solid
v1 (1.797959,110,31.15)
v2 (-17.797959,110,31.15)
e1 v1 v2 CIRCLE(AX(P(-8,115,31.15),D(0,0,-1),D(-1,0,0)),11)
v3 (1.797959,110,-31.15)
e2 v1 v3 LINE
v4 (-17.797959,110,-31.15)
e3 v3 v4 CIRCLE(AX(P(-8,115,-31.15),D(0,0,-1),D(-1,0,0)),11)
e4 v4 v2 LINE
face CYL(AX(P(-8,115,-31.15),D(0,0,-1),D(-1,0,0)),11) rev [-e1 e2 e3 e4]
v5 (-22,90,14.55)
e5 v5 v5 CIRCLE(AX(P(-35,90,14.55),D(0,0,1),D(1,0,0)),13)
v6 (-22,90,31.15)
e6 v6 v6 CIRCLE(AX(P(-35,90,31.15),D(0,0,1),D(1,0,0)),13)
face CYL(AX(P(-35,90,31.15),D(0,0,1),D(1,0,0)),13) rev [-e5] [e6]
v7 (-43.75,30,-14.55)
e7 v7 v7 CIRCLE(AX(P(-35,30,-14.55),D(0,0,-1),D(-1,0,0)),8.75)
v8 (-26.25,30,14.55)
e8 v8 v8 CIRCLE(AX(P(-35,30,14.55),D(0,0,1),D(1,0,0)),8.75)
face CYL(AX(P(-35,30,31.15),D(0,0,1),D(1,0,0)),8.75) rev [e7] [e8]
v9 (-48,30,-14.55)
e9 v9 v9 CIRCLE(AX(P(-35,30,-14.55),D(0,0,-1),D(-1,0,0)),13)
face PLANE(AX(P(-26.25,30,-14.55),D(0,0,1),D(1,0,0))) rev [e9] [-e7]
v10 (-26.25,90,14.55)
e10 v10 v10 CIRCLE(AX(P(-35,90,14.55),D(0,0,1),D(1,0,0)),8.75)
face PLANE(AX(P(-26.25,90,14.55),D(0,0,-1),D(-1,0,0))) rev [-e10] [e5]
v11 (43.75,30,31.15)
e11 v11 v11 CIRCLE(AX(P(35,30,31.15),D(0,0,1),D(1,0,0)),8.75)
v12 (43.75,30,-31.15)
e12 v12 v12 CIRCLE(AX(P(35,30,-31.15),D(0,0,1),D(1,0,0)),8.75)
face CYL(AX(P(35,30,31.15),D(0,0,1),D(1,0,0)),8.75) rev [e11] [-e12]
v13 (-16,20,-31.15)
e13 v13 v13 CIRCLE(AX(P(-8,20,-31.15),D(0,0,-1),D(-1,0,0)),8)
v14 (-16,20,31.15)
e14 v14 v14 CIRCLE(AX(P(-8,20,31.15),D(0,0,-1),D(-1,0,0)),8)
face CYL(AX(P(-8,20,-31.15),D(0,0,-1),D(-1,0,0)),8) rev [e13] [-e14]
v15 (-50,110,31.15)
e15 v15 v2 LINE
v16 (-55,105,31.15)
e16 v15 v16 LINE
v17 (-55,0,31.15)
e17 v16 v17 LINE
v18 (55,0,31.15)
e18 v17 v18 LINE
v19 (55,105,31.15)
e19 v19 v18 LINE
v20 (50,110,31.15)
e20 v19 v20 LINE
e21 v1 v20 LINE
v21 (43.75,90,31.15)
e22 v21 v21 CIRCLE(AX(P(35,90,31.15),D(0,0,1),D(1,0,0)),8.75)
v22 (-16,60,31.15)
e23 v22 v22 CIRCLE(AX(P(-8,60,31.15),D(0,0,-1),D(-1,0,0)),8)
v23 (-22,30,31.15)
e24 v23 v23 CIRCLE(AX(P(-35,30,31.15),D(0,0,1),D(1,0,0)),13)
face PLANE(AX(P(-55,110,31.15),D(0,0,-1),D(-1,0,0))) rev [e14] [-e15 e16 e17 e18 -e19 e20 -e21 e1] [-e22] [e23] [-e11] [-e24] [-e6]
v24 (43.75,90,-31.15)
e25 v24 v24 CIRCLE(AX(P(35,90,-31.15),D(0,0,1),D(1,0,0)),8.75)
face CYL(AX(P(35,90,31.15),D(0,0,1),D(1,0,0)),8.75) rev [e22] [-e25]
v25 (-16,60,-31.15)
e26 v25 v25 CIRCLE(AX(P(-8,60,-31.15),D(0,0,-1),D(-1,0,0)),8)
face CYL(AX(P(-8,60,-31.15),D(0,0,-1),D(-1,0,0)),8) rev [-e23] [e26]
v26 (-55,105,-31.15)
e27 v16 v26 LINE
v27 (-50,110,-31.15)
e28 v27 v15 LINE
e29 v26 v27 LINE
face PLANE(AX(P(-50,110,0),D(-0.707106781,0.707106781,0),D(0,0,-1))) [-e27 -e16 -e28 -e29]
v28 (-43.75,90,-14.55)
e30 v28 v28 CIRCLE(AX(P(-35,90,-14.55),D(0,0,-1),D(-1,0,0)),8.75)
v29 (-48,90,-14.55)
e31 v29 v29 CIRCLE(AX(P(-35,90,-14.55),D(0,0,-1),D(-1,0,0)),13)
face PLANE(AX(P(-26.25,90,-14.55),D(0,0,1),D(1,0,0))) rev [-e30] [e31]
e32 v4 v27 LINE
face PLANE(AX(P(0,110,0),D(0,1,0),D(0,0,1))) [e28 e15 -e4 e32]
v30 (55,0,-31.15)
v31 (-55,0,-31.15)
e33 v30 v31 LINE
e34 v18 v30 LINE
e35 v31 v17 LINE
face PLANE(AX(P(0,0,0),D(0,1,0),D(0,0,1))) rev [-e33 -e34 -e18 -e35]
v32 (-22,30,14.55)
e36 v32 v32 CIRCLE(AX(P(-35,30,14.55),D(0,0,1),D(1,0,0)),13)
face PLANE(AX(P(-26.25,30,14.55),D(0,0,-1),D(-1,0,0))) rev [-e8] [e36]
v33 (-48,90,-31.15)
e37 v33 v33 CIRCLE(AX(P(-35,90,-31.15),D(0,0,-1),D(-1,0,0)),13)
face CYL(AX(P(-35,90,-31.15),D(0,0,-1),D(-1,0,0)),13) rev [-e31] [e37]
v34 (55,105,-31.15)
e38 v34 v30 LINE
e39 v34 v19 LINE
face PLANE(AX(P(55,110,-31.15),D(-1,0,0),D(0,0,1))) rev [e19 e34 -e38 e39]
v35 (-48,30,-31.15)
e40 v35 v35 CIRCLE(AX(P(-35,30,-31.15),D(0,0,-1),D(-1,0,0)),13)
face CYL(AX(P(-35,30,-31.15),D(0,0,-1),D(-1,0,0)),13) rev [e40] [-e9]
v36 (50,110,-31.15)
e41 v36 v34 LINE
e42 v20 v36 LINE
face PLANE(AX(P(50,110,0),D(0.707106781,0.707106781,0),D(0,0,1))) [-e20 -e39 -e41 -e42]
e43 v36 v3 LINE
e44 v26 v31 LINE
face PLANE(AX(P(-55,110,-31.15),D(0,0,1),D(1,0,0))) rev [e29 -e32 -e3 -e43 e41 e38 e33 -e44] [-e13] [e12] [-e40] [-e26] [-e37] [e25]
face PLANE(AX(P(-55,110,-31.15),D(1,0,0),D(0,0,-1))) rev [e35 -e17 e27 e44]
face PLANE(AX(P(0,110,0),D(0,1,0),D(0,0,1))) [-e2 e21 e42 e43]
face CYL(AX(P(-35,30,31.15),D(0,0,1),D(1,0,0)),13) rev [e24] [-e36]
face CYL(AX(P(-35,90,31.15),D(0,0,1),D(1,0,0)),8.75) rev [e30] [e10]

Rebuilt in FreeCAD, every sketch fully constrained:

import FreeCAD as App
import Part
import Sketcher


def edges_at(feature, points):
    """Names of the edges that pass closest to the given points."""
    edges = feature.Shape.Edges
    near = lambda p: min(range(len(edges)), key=lambda i: edges[i].distToShape(Part.Vertex(*p))[0])
    return sorted({f"Edge{near(p) + 1}" for p in points})


def add_polygon(sketch, points):
    """Adds a closed chain of lines whose ends are joined by coincident constraints."""
    first, n = sketch.GeometryCount, len(points)
    for a, b in zip(points, points[1:] + points[:1]):
        sketch.addGeometry(Part.LineSegment(App.Vector(*a, 0), App.Vector(*b, 0)), False)
    for i in range(n):
        sketch.addConstraint(Sketcher.Constraint("Coincident", first + i, 2, first + (i + 1) % n, 1))

doc = App.newDocument("Part")
params = doc.addObject("Spreadsheet::Sheet", "Params")
for row, (alias, value) in enumerate([
    ("sketch1_width", "110 mm"),
    ("sketch1_height", "62.3 mm"),
    ("pad1_length", "110 mm"),
    ("sketch2_diameter", "17.5 mm"),
    ("hole_diameter", "17.5 mm"),
    ("sketch3_diameter", "17.5 mm"),
    ("hole2_diameter", "17.5 mm"),
    ("hole2_cbore_diameter", "26 mm"),
    ("hole2_cbore_depth", "16.6 mm"),
    ("sketch4_diameter", "16 mm"),
    ("hole3_diameter", "16 mm"),
    ("sketch5_diameter", "22 mm"),
    ("hole4_diameter", "22 mm"),
    ("chamfer_size", "5 mm"),
    ("sketch6_diameter", "17.5 mm"),
    ("hole5_diameter", "17.5 mm"),
    ("hole5_cbore_diameter", "26 mm"),
    ("hole5_cbore_depth", "16.6 mm"),
], start=1):
    params.set(f"A{row}", alias)
    params.set(f"B{row}", "=" + value)
    params.setAlias(f"B{row}", alias)

body = doc.addObject("PartDesign::Body", "Body")

# Sketch on XZ plane
sketch1 = body.newObject("Sketcher::SketchObject", "Sketch")
sketch1.AttachmentSupport = (doc.getObject("XZ_Plane"), [""])
sketch1.MapMode = "FlatFace"
add_polygon(sketch1, [(-55, -31), (-55, 31), (55, 31), (55, -31)])  # lines 0-3
sketch1.addConstraint([
    Sketcher.Constraint("Vertical", 0),
    Sketcher.Constraint("Horizontal", 1),
    Sketcher.Constraint("Vertical", 2),
    Sketcher.Constraint("Horizontal", 3),
    Sketcher.Constraint("Symmetric", 0, 2, 2, 2, -1, 1),
    Sketcher.Constraint("DistanceX", 1, 1, 1, 2, 110.0),
    Sketcher.Constraint("DistanceY", 0, 1, 0, 2, 62.3),
])
sketch1.setExpression("Constraints[9]", "Params.sketch1_width")
sketch1.setExpression("Constraints[10]", "Params.sketch1_height")
pad1 = body.newObject("PartDesign::Pad", "Pad")
pad1.Profile = sketch1
pad1.setExpression("Length", "Params.pad1_length")
pad1.Reversed = True

# Sketch on XY plane
sketch2 = body.newObject("Sketcher::SketchObject", "Sketch001")
sketch2.AttachmentSupport = (doc.getObject("XY_Plane"), [""])
sketch2.MapMode = "FlatFace"
sketch2.AttachmentOffset = App.Placement(App.Vector(0, 0, 31.15), App.Rotation())
sketch2.addGeometry([
    Part.Circle(App.Vector(35, 90, 0), App.Vector(0, 0, 1), 9),
    Part.Circle(App.Vector(35, 30, 0), App.Vector(0, 0, 1), 9),
], False)
sketch2.addConstraint([
    Sketcher.Constraint("Equal", 0, 1),
    Sketcher.Constraint("Vertical", 0, 3, 1, 3),
    Sketcher.Constraint("Diameter", 0, 17.5),
    Sketcher.Constraint("DistanceX", -1, 1, 0, 3, 35.0),
    Sketcher.Constraint("DistanceY", -1, 1, 0, 3, 90.0),
    Sketcher.Constraint("DistanceY", -1, 1, 1, 3, 30.0),
])
sketch2.setExpression("Constraints[2]", "Params.sketch2_diameter")
doc.recompute()
hole = body.newObject("PartDesign::Hole", "Hole")
hole.Profile = sketch2
hole.ThreadType = "None"
hole.setExpression("Diameter", "Params.hole_diameter")
hole.DepthType = "ThroughAll"

# Sketch on XY plane
sketch3 = body.newObject("Sketcher::SketchObject", "Sketch002")
sketch3.AttachmentSupport = (doc.getObject("XY_Plane"), [""])
sketch3.MapMode = "FlatFace"
sketch3.AttachmentOffset = App.Placement(App.Vector(0, 0, 31.15), App.Rotation())
sketch3.addGeometry([
    Part.Circle(App.Vector(-35, 90, 0), App.Vector(0, 0, 1), 9),
    Part.Circle(App.Vector(-35, 30, 0), App.Vector(0, 0, 1), 9),
], False)
sketch3.addConstraint([
    Sketcher.Constraint("Equal", 0, 1),
    Sketcher.Constraint("Vertical", 0, 3, 1, 3),
    Sketcher.Constraint("Diameter", 0, 17.5),
    Sketcher.Constraint("DistanceX", 0, 3, -1, 1, 35.0),
    Sketcher.Constraint("DistanceY", -1, 1, 0, 3, 90.0),
    Sketcher.Constraint("DistanceY", -1, 1, 1, 3, 30.0),
])
sketch3.setExpression("Constraints[2]", "Params.sketch3_diameter")
doc.recompute()
hole2 = body.newObject("PartDesign::Hole", "Hole001")
hole2.Profile = sketch3
hole2.ThreadType = "None"
hole2.setExpression("Diameter", "Params.hole2_diameter")
hole2.DepthType = "ThroughAll"
hole2.HoleCutType = "Counterbore"
hole2.setExpression("HoleCutDiameter", "Params.hole2_cbore_diameter")
hole2.setExpression("HoleCutDepth", "Params.hole2_cbore_depth")

# Sketch on XY plane
sketch4 = body.newObject("Sketcher::SketchObject", "Sketch003")
sketch4.AttachmentSupport = (doc.getObject("XY_Plane"), [""])
sketch4.MapMode = "FlatFace"
sketch4.AttachmentOffset = App.Placement(App.Vector(0, 0, -31.15), App.Rotation())
sketch4.addGeometry([
    Part.Circle(App.Vector(-8, 60, 0), App.Vector(0, 0, 1), 8),
    Part.Circle(App.Vector(-8, 20, 0), App.Vector(0, 0, 1), 8),
], False)
sketch4.addConstraint([
    Sketcher.Constraint("Equal", 0, 1),
    Sketcher.Constraint("Vertical", 0, 3, 1, 3),
    Sketcher.Constraint("Diameter", 0, 16.0),
    Sketcher.Constraint("DistanceX", 0, 3, -1, 1, 8.0),
    Sketcher.Constraint("DistanceY", -1, 1, 0, 3, 60.0),
    Sketcher.Constraint("DistanceY", -1, 1, 1, 3, 20.0),
])
sketch4.setExpression("Constraints[2]", "Params.sketch4_diameter")
doc.recompute()
hole3 = body.newObject("PartDesign::Hole", "Hole002")
hole3.Profile = sketch4
hole3.ThreadType = "None"
hole3.setExpression("Diameter", "Params.hole3_diameter")
hole3.DepthType = "ThroughAll"
hole3.Reversed = True

# Sketch on XY plane
sketch5 = body.newObject("Sketcher::SketchObject", "Sketch004")
sketch5.AttachmentSupport = (doc.getObject("XY_Plane"), [""])
sketch5.MapMode = "FlatFace"
sketch5.AttachmentOffset = App.Placement(App.Vector(0, 0, -31.15), App.Rotation())
sketch5.addGeometry(Part.Circle(App.Vector(-8, 115, 0), App.Vector(0, 0, 1), 11), False)
sketch5.addConstraint([
    Sketcher.Constraint("Diameter", 0, 22.0),
    Sketcher.Constraint("DistanceX", 0, 3, -1, 1, 8.0),
    Sketcher.Constraint("DistanceY", -1, 1, 0, 3, 115.0),
])
sketch5.setExpression("Constraints[0]", "Params.sketch5_diameter")
doc.recompute()
hole4 = body.newObject("PartDesign::Hole", "Hole003")
hole4.Profile = sketch5
hole4.ThreadType = "None"
hole4.setExpression("Diameter", "Params.hole4_diameter")
hole4.DepthType = "ThroughAll"
hole4.Reversed = True
doc.recompute()

chamfer = body.newObject("PartDesign::Chamfer", "Chamfer")
chamfer.Base = (hole4, edges_at(hole4, [(-55, 110, 0), (55, 110, 0)]))
chamfer.setExpression("Size", "Params.chamfer_size")

# Sketch on XY plane
sketch6 = body.newObject("Sketcher::SketchObject", "Sketch005")
sketch6.AttachmentSupport = (doc.getObject("XY_Plane"), [""])
sketch6.MapMode = "FlatFace"
sketch6.AttachmentOffset = App.Placement(App.Vector(0, 0, -31.15), App.Rotation())
sketch6.addGeometry([
    Part.Circle(App.Vector(-35, 90, 0), App.Vector(0, 0, 1), 9),
    Part.Circle(App.Vector(-35, 30, 0), App.Vector(0, 0, 1), 9),
], False)
sketch6.addConstraint([
    Sketcher.Constraint("Equal", 0, 1),
    Sketcher.Constraint("Vertical", 0, 3, 1, 3),
    Sketcher.Constraint("Diameter", 0, 17.5),
    Sketcher.Constraint("DistanceX", 0, 3, -1, 1, 35.0),
    Sketcher.Constraint("DistanceY", -1, 1, 0, 3, 90.0),
    Sketcher.Constraint("DistanceY", -1, 1, 1, 3, 30.0),
])
sketch6.setExpression("Constraints[2]", "Params.sketch6_diameter")
doc.recompute()
hole5 = body.newObject("PartDesign::Hole", "Hole004")
hole5.Profile = sketch6
hole5.ThreadType = "None"
hole5.setExpression("Diameter", "Params.hole5_diameter")
hole5.DepthType = "ThroughAll"
hole5.HoleCutType = "Counterbore"
hole5.setExpression("HoleCutDiameter", "Params.hole5_cbore_diameter")
hole5.setExpression("HoleCutDepth", "Params.hole5_cbore_depth")
hole5.Reversed = True

doc.recompute()
